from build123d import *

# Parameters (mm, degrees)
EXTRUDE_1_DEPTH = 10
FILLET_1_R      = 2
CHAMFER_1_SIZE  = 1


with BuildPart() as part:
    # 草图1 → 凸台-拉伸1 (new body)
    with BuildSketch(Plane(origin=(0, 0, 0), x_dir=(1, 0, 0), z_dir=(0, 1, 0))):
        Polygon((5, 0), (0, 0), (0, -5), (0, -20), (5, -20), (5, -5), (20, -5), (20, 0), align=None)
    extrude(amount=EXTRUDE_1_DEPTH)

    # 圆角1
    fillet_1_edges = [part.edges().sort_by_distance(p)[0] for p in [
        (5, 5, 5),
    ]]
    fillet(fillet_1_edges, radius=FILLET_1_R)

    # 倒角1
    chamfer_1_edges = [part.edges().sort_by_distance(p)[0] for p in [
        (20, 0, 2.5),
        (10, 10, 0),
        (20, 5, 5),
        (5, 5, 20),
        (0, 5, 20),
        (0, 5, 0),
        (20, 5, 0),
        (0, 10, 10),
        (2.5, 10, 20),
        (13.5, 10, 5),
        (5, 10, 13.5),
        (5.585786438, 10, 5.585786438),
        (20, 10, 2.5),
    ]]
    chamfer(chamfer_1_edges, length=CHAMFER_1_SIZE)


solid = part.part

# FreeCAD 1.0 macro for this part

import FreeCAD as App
import Part
import Sketcher
from FreeCAD import Vector


def edges_at(feature, points):
    """Names of the edges that pass closest to the given points."""
    edges = feature.Shape.Edges
    near = lambda p: min(range(len(edges)), key=lambda i: edges[i].distToShape(Part.Vertex(*p))[0])
    return sorted({f"Edge{near(p) + 1}" for p in points})

doc = App.newDocument("Part")
body = doc.addObject("PartDesign::Body", "Body")

# Sketch on XZ plane
sketch1 = body.newObject("Sketcher::SketchObject", "Sketch")
sketch1.AttachmentSupport = (doc.getObject("XZ_Plane"), [""])
sketch1.MapMode = "FlatFace"
sketch1.addGeometry([
    Part.LineSegment(Vector(0, 0, 0), Vector(0, 20, 0)),  # 0
    Part.LineSegment(Vector(0, 20, 0), Vector(5, 20, 0)),  # 1
    Part.LineSegment(Vector(5, 20, 0), Vector(5, 5, 0)),  # 2
    Part.LineSegment(Vector(5, 5, 0), Vector(20, 5, 0)),  # 3
    Part.LineSegment(Vector(20, 5, 0), Vector(20, 0, 0)),  # 4
    Part.LineSegment(Vector(20, 0, 0), Vector(0, 0, 0)),  # 5
], False)
sketch1.addConstraint([
    Sketcher.Constraint("Coincident", 0, 2, 1, 1),
    Sketcher.Constraint("Coincident", 1, 2, 2, 1),
    Sketcher.Constraint("Coincident", 2, 2, 3, 1),
    Sketcher.Constraint("Coincident", 3, 2, 4, 1),
    Sketcher.Constraint("Coincident", 4, 2, 5, 1),
    Sketcher.Constraint("Coincident", 5, 2, 0, 1),
    Sketcher.Constraint("Vertical", 0),
    Sketcher.Constraint("Horizontal", 1),
    Sketcher.Constraint("Vertical", 2),
    Sketcher.Constraint("Horizontal", 3),
    Sketcher.Constraint("Vertical", 4),
    Sketcher.Constraint("Horizontal", 5),
    Sketcher.Constraint("Coincident", 5, 2, -1, 1),
    Sketcher.Constraint("Equal", 5, 0),
    Sketcher.Constraint("Equal", 3, 2),
    Sketcher.Constraint("DistanceX", 1, 1, 1, 2, 5.0),
    Sketcher.Constraint("DistanceX", 3, 1, 3, 2, 15.0),
])
pad1 = body.newObject("PartDesign::Pad", "Pad")
pad1.Profile = sketch1
pad1.Length = 10
pad1.Reversed = True
doc.recompute()

fillet = body.newObject("PartDesign::Fillet", "Fillet")
fillet.Base = (pad1, edges_at(pad1, [(5, 5, 5)]))
fillet.Radius = 2
doc.recompute()

chamfer = body.newObject("PartDesign::Chamfer", "Chamfer")
chamfer.Base = (fillet, edges_at(fillet, [
    (20, 0, 2.5),
    (10, 10, 0),
    (20, 5, 5),
    (5, 5, 20),
    (0, 5, 20),
    (0, 5, 0),
    (20, 5, 0),
    (0, 10, 10),
    (2.5, 10, 20),
    (13.5, 10, 5),
    (5, 10, 13.5),
    (5.586, 10, 5.586),
    (20, 10, 2.5),
]))
chamfer.Size = 1

doc.recompute()
